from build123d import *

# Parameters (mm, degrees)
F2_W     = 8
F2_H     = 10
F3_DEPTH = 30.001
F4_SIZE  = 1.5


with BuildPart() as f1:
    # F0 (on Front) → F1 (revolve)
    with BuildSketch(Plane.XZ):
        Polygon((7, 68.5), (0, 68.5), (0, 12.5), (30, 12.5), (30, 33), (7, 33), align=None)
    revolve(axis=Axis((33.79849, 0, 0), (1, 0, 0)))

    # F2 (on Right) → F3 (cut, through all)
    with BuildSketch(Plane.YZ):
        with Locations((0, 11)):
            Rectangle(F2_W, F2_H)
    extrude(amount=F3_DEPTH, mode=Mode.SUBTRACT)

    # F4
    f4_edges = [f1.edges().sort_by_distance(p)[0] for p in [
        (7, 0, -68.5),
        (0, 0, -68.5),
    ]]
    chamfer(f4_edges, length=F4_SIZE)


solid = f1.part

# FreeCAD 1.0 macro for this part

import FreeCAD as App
import Part
import Sketcher


def edges_at(feature, points):
    """Names of the edges that pass closest to the given points."""
    edges = feature.Shape.Edges
    near = lambda p: min(range(len(edges)), key=lambda i: edges[i].distToShape(Part.Vertex(*p))[0])
    return sorted({f"Edge{near(p) + 1}" for p in points})


def add_polygon(sketch, points):
    """Adds a closed chain of lines whose ends are joined by coincident constraints."""
    first, n = sketch.GeometryCount, len(points)
    for a, b in zip(points, points[1:] + points[:1]):
        sketch.addGeometry(Part.LineSegment(App.Vector(*a, 0), App.Vector(*b, 0)), False)
    for i in range(n):
        sketch.addConstraint(Sketcher.Constraint("Coincident", first + i, 2, first + (i + 1) % n, 1))

doc = App.newDocument("Part")
body = doc.addObject("PartDesign::Body", "Body")

# Sketch on XZ plane
sketch1 = body.newObject("Sketcher::SketchObject", "Sketch")
sketch1.AttachmentSupport = (doc.getObject("XZ_Plane"), [""])
sketch1.MapMode = "FlatFace"
add_polygon(sketch1, [(7, 68.5), (0, 68.5), (0, 12.5), (30, 12.5), (30, 33), (7, 33)])  # lines 0-5
sketch1.addConstraint([
    Sketcher.Constraint("Horizontal", 0),
    Sketcher.Constraint("Vertical", 1),
    Sketcher.Constraint("Horizontal", 2),
    Sketcher.Constraint("Vertical", 3),
    Sketcher.Constraint("Horizontal", 4),
    Sketcher.Constraint("Vertical", 5),
    Sketcher.Constraint("PointOnObject", 0, 2, -2),
    Sketcher.Constraint("DistanceX", 0, 2, 0, 1, 7.0),
    Sketcher.Constraint("DistanceX", 2, 1, 2, 2, 30.0),
    Sketcher.Constraint("DistanceY", 1, 2, 1, 1, 56.0),
    Sketcher.Constraint("DistanceY", 3, 1, 3, 2, 20.5),
    Sketcher.Constraint("DistanceY", -1, 1, 3, 2, 33.0),
])
revolution = body.newObject("PartDesign::Revolution", "Revolution")
revolution.Profile = sketch1
revolution.ReferenceAxis = (sketch1, ["H_Axis"])
revolution.Angle = 360

# Sketch on YZ plane
sketch2 = body.newObject("Sketcher::SketchObject", "Sketch001")
sketch2.AttachmentSupport = (doc.getObject("YZ_Plane"), [""])
sketch2.MapMode = "FlatFace"
add_polygon(sketch2, [(-4, 16), (-4, 6), (4, 6), (4, 16)])  # lines 0-3
sketch2.addConstraint([
    Sketcher.Constraint("Vertical", 0),
    Sketcher.Constraint("Horizontal", 1),
    Sketcher.Constraint("Vertical", 2),
    Sketcher.Constraint("Horizontal", 3),
    Sketcher.Constraint("DistanceX", 1, 1, 1, 2, 8.0),
    Sketcher.Constraint("DistanceY", 0, 2, 0, 1, 10.0),
    Sketcher.Constraint("DistanceX", 0, 2, -1, 1, 4.0),
    Sketcher.Constraint("DistanceY", -1, 1, 0, 2, 6.0),
])
pocket1 = body.newObject("PartDesign::Pocket", "Pocket")
pocket1.Profile = sketch2
pocket1.Type = "ThroughAll"
pocket1.Reversed = True
doc.recompute()

chamfer = body.newObject("PartDesign::Chamfer", "Chamfer")
chamfer.Base = (pocket1, edges_at(pocket1, [(7, 0, -68.5), (0, 0, -68.5)]))
chamfer.Size = 1.5

doc.recompute()
